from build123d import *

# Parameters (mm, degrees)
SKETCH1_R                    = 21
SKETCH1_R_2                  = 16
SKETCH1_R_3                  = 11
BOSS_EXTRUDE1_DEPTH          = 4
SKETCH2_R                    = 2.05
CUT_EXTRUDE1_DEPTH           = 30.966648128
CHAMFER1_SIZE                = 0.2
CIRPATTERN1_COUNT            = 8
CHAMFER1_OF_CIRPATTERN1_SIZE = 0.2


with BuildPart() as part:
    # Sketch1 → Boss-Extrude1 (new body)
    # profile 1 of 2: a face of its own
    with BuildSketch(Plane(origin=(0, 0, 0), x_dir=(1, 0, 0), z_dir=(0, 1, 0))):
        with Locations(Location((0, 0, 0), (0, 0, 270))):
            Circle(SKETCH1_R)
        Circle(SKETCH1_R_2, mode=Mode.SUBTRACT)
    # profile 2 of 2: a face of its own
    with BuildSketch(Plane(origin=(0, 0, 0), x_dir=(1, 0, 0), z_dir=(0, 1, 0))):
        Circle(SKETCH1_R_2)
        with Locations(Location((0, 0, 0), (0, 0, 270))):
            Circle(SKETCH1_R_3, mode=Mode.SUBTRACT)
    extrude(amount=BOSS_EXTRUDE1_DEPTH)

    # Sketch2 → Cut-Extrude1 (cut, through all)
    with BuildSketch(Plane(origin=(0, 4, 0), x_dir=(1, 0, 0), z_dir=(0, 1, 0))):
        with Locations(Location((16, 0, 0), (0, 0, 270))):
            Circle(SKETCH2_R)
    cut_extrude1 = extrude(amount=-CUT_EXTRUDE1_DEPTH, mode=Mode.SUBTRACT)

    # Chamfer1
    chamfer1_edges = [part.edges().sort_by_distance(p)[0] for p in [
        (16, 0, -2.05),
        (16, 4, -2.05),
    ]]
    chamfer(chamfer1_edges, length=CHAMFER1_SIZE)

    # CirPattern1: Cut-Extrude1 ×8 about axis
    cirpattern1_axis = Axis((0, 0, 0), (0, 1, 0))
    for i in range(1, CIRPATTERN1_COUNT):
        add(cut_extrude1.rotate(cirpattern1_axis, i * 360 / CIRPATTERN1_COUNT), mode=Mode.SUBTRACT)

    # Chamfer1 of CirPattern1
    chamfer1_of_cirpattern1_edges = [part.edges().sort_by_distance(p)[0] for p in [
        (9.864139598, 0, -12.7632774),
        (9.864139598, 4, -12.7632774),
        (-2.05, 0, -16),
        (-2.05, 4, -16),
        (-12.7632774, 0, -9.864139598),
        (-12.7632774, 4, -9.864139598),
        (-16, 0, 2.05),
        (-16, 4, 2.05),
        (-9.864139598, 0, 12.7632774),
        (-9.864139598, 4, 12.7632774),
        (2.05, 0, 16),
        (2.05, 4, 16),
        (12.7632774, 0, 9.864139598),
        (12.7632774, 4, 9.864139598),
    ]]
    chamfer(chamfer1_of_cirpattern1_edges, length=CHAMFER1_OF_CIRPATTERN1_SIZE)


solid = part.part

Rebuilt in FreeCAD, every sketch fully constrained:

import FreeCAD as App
import Part
import Sketcher
from FreeCAD import Vector
Q = App.Units.Quantity


def edges_at(feature, points):
    """Names of the edges that pass closest to the given points."""
    edges = feature.Shape.Edges
    near = lambda p: min(range(len(edges)), key=lambda i: edges[i].distToShape(Part.Vertex(*p))[0])
    return sorted({f"Edge{near(p) + 1}" for p in points})

doc = App.newDocument("Part")
body = doc.addObject("PartDesign::Body", "Body")

# Sketch on XZ plane
sketch1 = doc.addObject("Sketcher::SketchObject", "Sketch")
body.addObject(sketch1)
sketch1.AttachmentSupport = (doc.XZ_Plane, [""])
sketch1.MapMode = "FlatFace"
sketch1.addGeometry(Part.Circle(Vector(0, 0, 0), Vector(0, 0, 1), 21), False)
sketch1.addGeometry(Part.Circle(Vector(0, 0, 0), Vector(0, 0, 1), 11), False)
sketch1.addConstraint(Sketcher.Constraint("Coincident", 0, 3, -1, 1))
sketch1.addConstraint(Sketcher.Constraint("Coincident", 1, 3, -1, 1))
sketch1.addConstraint(Sketcher.Constraint("Diameter", 0, Q("42 mm")))
sketch1.addConstraint(Sketcher.Constraint("Diameter", 1, Q("22 mm")))
pad1 = doc.addObject("PartDesign::Pad", "Pad")
body.addObject(pad1)
pad1.Profile = sketch1
pad1.Length = 4
pad1.Reversed = True

# Sketch on XZ plane
sketch2 = doc.addObject("Sketcher::SketchObject", "Sketch001")
body.addObject(sketch2)
sketch2.AttachmentSupport = (doc.XZ_Plane, [""])
sketch2.MapMode = "FlatFace"
sketch2.AttachmentOffset = App.Placement(Vector(0, 0, -4), App.Rotation())
sketch2.addGeometry(Part.Circle(Vector(16, 0, 0), Vector(0, 0, 1), 2.05), False)
sketch2.addConstraint(Sketcher.Constraint("PointOnObject", 0, 3, -1))
sketch2.addConstraint(Sketcher.Constraint("Diameter", 0, Q("4.1 mm")))
sketch2.addConstraint(Sketcher.Constraint("DistanceX", -1, 1, 0, 3, Q("16 mm")))
pocket1 = doc.addObject("PartDesign::Pocket", "Pocket")
body.addObject(pocket1)
pocket1.Profile = sketch2
pocket1.Type = "ThroughAll"
pocket1.Reversed = True
doc.recompute()

chamfer = doc.addObject("PartDesign::Chamfer", "Chamfer")
body.addObject(chamfer)
chamfer.Base = (pocket1, edges_at(pocket1, [(16, 0, -2.05), (16, 4, -2.05)]))
chamfer.Size = 0.2
doc.recompute()

polarpattern = doc.addObject("PartDesign::PolarPattern", "PolarPattern")
body.addObject(polarpattern)
polarpattern.Originals = [pocket1]
polarpattern.Axis = (doc.Y_Axis, [""])
polarpattern.Angle = 360
polarpattern.Occurrences = 8
body.Tip = polarpattern
doc.recompute()

chamfer2 = doc.addObject("PartDesign::Chamfer", "Chamfer001")
body.addObject(chamfer2)
chamfer2.Base = (polarpattern, edges_at(polarpattern, [
    (9.864, 0, -12.763),
    (9.864, 4, -12.763),
    (-2.05, 0, -16),
    (-2.05, 4, -16),
    (-12.763, 0, -9.864),
    (-12.763, 4, -9.864),
    (-16, 0, 2.05),
    (-16, 4, 2.05),
    (-9.864, 0, 12.763),
    (-9.864, 4, 12.763),
    (2.05, 0, 16),
    (2.05, 4, 16),
    (12.763, 0, 9.864),
    (12.763, 4, 9.864),
]))
chamfer2.Size = 0.2

doc.recompute()
